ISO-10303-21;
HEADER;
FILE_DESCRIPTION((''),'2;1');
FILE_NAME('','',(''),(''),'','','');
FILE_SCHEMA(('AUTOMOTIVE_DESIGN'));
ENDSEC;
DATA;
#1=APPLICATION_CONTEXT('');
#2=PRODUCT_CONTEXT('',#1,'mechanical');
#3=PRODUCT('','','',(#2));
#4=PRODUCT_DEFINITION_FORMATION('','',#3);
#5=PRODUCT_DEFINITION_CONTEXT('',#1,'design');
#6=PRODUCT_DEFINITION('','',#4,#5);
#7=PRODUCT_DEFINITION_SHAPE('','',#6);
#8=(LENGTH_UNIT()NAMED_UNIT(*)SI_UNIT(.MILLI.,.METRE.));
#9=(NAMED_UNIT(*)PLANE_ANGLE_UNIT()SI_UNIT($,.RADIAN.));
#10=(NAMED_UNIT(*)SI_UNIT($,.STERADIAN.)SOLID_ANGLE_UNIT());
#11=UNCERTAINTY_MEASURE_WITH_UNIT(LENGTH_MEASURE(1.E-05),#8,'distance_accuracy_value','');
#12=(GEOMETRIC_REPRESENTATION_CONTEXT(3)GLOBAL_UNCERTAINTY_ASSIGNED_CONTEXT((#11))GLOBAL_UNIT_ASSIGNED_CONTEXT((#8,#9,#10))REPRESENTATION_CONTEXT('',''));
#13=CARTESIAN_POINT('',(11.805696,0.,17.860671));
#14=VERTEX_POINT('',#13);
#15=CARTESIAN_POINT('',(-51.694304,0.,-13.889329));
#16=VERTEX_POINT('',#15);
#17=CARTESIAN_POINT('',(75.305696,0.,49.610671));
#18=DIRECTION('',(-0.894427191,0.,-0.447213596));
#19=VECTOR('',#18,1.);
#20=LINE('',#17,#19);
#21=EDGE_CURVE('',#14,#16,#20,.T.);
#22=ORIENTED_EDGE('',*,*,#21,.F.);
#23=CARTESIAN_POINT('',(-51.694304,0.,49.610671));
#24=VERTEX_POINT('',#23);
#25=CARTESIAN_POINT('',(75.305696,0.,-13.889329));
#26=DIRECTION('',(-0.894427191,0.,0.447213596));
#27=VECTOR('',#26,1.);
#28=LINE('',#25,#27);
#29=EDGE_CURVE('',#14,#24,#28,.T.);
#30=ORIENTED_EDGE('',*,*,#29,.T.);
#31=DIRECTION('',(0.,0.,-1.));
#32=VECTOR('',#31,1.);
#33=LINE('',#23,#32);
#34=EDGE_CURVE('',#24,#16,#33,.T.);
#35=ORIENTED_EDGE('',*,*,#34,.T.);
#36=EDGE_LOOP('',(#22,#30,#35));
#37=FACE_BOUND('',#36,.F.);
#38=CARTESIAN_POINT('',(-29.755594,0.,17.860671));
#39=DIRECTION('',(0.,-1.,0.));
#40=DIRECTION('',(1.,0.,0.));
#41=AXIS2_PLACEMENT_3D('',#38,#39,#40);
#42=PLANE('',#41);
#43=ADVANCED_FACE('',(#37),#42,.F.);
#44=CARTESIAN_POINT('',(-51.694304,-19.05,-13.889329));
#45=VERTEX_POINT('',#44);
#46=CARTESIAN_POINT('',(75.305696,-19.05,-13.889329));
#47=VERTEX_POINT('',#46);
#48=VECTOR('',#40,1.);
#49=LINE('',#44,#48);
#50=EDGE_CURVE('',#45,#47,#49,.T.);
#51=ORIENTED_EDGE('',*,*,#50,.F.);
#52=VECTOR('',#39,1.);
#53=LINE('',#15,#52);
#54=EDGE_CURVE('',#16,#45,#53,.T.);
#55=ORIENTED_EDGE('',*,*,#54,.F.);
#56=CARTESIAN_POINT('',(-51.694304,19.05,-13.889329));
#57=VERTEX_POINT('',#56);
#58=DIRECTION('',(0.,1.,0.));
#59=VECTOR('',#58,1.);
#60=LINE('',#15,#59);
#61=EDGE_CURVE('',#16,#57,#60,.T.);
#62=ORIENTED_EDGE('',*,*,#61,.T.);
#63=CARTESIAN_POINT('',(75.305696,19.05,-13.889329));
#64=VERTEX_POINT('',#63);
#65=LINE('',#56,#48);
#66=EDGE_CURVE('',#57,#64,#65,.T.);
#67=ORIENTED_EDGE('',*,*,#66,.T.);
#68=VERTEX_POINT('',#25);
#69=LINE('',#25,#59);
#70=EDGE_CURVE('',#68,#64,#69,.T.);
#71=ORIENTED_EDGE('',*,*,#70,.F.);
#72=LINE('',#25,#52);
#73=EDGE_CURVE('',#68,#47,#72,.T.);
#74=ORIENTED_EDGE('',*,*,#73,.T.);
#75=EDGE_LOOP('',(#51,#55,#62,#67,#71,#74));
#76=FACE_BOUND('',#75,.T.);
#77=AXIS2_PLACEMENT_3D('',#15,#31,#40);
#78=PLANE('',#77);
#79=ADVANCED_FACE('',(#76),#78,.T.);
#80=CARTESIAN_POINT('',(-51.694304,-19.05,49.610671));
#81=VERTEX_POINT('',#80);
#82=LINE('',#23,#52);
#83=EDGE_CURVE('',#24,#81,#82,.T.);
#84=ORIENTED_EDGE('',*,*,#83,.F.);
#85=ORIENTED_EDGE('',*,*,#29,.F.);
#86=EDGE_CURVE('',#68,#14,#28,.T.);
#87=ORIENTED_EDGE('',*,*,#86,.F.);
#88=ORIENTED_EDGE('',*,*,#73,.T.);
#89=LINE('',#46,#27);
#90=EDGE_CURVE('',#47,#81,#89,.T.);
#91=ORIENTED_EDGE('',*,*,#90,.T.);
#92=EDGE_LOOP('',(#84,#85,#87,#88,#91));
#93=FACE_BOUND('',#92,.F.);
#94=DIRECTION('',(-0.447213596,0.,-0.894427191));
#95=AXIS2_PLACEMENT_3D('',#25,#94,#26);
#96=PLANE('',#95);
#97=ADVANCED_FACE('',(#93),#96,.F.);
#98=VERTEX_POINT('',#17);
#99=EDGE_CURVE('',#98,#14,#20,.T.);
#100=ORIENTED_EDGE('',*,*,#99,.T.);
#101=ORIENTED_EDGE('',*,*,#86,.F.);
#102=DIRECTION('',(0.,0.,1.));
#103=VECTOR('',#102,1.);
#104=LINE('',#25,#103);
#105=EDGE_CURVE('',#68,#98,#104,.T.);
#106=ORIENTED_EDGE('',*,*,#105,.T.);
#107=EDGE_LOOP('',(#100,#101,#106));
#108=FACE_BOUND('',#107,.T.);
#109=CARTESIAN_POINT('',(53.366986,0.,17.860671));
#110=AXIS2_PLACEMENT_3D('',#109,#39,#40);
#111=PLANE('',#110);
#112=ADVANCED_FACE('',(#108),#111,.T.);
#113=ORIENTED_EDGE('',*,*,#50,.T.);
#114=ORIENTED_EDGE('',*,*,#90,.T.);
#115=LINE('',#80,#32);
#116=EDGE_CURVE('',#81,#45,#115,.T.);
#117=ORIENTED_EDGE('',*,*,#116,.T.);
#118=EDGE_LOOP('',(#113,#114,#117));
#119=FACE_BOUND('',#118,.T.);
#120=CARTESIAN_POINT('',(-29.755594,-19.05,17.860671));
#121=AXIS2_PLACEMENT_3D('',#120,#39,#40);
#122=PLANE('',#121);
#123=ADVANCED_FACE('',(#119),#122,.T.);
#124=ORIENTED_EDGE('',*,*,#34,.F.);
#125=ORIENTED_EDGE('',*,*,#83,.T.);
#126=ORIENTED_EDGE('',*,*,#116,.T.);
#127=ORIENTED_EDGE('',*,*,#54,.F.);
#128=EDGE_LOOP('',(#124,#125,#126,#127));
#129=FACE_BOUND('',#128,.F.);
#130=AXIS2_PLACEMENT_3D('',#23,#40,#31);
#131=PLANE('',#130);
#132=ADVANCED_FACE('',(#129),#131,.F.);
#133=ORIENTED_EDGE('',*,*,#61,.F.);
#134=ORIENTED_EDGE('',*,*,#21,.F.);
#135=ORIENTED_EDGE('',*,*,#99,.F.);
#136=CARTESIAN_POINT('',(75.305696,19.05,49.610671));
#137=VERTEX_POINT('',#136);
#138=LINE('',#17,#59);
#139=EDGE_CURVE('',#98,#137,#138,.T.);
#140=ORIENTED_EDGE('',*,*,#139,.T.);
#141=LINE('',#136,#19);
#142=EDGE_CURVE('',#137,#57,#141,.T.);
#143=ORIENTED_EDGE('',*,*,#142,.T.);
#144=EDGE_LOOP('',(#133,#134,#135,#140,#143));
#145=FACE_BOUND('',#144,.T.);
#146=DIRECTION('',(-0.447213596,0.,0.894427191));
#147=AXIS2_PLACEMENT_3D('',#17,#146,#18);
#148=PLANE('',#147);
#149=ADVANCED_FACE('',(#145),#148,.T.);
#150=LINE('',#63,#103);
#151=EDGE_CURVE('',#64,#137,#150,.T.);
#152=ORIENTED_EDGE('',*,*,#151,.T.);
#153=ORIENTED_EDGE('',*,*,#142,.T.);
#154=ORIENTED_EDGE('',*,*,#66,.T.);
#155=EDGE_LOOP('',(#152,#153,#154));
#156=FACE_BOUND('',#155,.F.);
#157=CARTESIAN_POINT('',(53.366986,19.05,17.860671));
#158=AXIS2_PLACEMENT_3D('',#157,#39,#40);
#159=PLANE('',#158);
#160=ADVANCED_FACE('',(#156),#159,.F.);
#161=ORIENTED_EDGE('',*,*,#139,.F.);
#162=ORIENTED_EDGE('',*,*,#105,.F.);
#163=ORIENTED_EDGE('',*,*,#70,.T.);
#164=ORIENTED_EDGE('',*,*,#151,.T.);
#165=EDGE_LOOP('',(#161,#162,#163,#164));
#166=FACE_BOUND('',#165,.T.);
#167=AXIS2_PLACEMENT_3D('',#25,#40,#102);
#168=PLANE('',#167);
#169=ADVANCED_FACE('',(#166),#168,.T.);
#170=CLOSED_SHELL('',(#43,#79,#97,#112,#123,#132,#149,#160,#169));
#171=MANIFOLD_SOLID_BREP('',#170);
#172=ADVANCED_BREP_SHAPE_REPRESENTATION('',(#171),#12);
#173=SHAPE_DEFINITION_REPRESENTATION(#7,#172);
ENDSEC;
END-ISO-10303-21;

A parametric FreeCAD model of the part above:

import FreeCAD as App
import Part
import Sketcher
from FreeCAD import Vector
Q = App.Units.Quantity

doc = App.newDocument("Part")
body = doc.addObject("PartDesign::Body", "Body")

sketch1 = body.newObject("Sketcher::SketchObject", "Sketch")
sketch1.AttachmentSupport = (doc.getObject("XZ_Plane"), [""])
sketch1.MapMode = "FlatFace"
sketch1.addGeometry(Part.LineSegment(Vector(-51.694304, 49.610671, 0), Vector(-51.694304, -13.889329, 0)), False)
sketch1.addGeometry(Part.LineSegment(Vector(-51.694304, -13.889329, 0), Vector(75.305696, -13.889329, 0)), False)
sketch1.addGeometry(Part.LineSegment(Vector(75.305696, -13.889329, 0), Vector(-51.694304, 49.610671, 0)), False)
sketch1.addConstraint(Sketcher.Constraint("Coincident", 0, 2, 1, 1))
sketch1.addConstraint(Sketcher.Constraint("Coincident", 1, 2, 2, 1))
sketch1.addConstraint(Sketcher.Constraint("Coincident", 2, 2, 0, 1))
sketch1.addConstraint(Sketcher.Constraint("Vertical", 0))
sketch1.addConstraint(Sketcher.Constraint("Horizontal", 1))
sketch1.addConstraint(Sketcher.Constraint("DistanceX", 1, 1, 1, 2, Q("5 in")))
sketch1.addConstraint(Sketcher.Constraint("DistanceY", 0, 2, 0, 1, Q("2.5 in")))
sketch1.addConstraint(Sketcher.Constraint("DistanceY", 0, 2, -1, 1, Q("13.889329 mm")))
sketch1.addConstraint(Sketcher.Constraint("DistanceX", 0, 2, -1, 1, Q("51.694304 mm")))
pad1 = body.newObject("PartDesign::Pad", "Pad")
pad1.Profile = sketch1
pad1.Length = Q("0.75 in")

sketch2 = body.newObject("Sketcher::SketchObject", "Sketch001")
sketch2.AttachmentSupport = (doc.getObject("XZ_Plane"), [""])
sketch2.MapMode = "FlatFace"
sketch2.addGeometry(Part.LineSegment(Vector(75.305696, 49.610671, 0), Vector(-51.694304, -13.889329, 0)), False)
sketch2.addGeometry(Part.LineSegment(Vector(-51.694304, -13.889329, 0), Vector(75.305696, -13.889329, 0)), False)
sketch2.addGeometry(Part.LineSegment(Vector(75.305696, -13.889329, 0), Vector(75.305696, 49.610671, 0)), False)
sketch2.addConstraint(Sketcher.Constraint("Coincident", 0, 2, 1, 1))
sketch2.addConstraint(Sketcher.Constraint("Coincident", 1, 2, 2, 1))
sketch2.addConstraint(Sketcher.Constraint("Coincident", 2, 2, 0, 1))
sketch2.addConstraint(Sketcher.Constraint("Horizontal", 1))
sketch2.addConstraint(Sketcher.Constraint("Vertical", 2))
sketch2.addConstraint(Sketcher.Constraint("DistanceX", 1, 1, 1, 2, Q("5 in")))
sketch2.addConstraint(Sketcher.Constraint("DistanceY", 2, 1, 2, 2, Q("2.5 in")))
sketch2.addConstraint(Sketcher.Constraint("DistanceY", 0, 2, -1, 1, Q("13.889329 mm")))
sketch2.addConstraint(Sketcher.Constraint("DistanceX", 0, 2, -1, 1, Q("51.694304 mm")))
pad2 = body.newObject("PartDesign::Pad", "Pad001")
pad2.Profile = sketch2
pad2.Length = Q("0.75 in")
pad2.Reversed = True

doc.recompute()
